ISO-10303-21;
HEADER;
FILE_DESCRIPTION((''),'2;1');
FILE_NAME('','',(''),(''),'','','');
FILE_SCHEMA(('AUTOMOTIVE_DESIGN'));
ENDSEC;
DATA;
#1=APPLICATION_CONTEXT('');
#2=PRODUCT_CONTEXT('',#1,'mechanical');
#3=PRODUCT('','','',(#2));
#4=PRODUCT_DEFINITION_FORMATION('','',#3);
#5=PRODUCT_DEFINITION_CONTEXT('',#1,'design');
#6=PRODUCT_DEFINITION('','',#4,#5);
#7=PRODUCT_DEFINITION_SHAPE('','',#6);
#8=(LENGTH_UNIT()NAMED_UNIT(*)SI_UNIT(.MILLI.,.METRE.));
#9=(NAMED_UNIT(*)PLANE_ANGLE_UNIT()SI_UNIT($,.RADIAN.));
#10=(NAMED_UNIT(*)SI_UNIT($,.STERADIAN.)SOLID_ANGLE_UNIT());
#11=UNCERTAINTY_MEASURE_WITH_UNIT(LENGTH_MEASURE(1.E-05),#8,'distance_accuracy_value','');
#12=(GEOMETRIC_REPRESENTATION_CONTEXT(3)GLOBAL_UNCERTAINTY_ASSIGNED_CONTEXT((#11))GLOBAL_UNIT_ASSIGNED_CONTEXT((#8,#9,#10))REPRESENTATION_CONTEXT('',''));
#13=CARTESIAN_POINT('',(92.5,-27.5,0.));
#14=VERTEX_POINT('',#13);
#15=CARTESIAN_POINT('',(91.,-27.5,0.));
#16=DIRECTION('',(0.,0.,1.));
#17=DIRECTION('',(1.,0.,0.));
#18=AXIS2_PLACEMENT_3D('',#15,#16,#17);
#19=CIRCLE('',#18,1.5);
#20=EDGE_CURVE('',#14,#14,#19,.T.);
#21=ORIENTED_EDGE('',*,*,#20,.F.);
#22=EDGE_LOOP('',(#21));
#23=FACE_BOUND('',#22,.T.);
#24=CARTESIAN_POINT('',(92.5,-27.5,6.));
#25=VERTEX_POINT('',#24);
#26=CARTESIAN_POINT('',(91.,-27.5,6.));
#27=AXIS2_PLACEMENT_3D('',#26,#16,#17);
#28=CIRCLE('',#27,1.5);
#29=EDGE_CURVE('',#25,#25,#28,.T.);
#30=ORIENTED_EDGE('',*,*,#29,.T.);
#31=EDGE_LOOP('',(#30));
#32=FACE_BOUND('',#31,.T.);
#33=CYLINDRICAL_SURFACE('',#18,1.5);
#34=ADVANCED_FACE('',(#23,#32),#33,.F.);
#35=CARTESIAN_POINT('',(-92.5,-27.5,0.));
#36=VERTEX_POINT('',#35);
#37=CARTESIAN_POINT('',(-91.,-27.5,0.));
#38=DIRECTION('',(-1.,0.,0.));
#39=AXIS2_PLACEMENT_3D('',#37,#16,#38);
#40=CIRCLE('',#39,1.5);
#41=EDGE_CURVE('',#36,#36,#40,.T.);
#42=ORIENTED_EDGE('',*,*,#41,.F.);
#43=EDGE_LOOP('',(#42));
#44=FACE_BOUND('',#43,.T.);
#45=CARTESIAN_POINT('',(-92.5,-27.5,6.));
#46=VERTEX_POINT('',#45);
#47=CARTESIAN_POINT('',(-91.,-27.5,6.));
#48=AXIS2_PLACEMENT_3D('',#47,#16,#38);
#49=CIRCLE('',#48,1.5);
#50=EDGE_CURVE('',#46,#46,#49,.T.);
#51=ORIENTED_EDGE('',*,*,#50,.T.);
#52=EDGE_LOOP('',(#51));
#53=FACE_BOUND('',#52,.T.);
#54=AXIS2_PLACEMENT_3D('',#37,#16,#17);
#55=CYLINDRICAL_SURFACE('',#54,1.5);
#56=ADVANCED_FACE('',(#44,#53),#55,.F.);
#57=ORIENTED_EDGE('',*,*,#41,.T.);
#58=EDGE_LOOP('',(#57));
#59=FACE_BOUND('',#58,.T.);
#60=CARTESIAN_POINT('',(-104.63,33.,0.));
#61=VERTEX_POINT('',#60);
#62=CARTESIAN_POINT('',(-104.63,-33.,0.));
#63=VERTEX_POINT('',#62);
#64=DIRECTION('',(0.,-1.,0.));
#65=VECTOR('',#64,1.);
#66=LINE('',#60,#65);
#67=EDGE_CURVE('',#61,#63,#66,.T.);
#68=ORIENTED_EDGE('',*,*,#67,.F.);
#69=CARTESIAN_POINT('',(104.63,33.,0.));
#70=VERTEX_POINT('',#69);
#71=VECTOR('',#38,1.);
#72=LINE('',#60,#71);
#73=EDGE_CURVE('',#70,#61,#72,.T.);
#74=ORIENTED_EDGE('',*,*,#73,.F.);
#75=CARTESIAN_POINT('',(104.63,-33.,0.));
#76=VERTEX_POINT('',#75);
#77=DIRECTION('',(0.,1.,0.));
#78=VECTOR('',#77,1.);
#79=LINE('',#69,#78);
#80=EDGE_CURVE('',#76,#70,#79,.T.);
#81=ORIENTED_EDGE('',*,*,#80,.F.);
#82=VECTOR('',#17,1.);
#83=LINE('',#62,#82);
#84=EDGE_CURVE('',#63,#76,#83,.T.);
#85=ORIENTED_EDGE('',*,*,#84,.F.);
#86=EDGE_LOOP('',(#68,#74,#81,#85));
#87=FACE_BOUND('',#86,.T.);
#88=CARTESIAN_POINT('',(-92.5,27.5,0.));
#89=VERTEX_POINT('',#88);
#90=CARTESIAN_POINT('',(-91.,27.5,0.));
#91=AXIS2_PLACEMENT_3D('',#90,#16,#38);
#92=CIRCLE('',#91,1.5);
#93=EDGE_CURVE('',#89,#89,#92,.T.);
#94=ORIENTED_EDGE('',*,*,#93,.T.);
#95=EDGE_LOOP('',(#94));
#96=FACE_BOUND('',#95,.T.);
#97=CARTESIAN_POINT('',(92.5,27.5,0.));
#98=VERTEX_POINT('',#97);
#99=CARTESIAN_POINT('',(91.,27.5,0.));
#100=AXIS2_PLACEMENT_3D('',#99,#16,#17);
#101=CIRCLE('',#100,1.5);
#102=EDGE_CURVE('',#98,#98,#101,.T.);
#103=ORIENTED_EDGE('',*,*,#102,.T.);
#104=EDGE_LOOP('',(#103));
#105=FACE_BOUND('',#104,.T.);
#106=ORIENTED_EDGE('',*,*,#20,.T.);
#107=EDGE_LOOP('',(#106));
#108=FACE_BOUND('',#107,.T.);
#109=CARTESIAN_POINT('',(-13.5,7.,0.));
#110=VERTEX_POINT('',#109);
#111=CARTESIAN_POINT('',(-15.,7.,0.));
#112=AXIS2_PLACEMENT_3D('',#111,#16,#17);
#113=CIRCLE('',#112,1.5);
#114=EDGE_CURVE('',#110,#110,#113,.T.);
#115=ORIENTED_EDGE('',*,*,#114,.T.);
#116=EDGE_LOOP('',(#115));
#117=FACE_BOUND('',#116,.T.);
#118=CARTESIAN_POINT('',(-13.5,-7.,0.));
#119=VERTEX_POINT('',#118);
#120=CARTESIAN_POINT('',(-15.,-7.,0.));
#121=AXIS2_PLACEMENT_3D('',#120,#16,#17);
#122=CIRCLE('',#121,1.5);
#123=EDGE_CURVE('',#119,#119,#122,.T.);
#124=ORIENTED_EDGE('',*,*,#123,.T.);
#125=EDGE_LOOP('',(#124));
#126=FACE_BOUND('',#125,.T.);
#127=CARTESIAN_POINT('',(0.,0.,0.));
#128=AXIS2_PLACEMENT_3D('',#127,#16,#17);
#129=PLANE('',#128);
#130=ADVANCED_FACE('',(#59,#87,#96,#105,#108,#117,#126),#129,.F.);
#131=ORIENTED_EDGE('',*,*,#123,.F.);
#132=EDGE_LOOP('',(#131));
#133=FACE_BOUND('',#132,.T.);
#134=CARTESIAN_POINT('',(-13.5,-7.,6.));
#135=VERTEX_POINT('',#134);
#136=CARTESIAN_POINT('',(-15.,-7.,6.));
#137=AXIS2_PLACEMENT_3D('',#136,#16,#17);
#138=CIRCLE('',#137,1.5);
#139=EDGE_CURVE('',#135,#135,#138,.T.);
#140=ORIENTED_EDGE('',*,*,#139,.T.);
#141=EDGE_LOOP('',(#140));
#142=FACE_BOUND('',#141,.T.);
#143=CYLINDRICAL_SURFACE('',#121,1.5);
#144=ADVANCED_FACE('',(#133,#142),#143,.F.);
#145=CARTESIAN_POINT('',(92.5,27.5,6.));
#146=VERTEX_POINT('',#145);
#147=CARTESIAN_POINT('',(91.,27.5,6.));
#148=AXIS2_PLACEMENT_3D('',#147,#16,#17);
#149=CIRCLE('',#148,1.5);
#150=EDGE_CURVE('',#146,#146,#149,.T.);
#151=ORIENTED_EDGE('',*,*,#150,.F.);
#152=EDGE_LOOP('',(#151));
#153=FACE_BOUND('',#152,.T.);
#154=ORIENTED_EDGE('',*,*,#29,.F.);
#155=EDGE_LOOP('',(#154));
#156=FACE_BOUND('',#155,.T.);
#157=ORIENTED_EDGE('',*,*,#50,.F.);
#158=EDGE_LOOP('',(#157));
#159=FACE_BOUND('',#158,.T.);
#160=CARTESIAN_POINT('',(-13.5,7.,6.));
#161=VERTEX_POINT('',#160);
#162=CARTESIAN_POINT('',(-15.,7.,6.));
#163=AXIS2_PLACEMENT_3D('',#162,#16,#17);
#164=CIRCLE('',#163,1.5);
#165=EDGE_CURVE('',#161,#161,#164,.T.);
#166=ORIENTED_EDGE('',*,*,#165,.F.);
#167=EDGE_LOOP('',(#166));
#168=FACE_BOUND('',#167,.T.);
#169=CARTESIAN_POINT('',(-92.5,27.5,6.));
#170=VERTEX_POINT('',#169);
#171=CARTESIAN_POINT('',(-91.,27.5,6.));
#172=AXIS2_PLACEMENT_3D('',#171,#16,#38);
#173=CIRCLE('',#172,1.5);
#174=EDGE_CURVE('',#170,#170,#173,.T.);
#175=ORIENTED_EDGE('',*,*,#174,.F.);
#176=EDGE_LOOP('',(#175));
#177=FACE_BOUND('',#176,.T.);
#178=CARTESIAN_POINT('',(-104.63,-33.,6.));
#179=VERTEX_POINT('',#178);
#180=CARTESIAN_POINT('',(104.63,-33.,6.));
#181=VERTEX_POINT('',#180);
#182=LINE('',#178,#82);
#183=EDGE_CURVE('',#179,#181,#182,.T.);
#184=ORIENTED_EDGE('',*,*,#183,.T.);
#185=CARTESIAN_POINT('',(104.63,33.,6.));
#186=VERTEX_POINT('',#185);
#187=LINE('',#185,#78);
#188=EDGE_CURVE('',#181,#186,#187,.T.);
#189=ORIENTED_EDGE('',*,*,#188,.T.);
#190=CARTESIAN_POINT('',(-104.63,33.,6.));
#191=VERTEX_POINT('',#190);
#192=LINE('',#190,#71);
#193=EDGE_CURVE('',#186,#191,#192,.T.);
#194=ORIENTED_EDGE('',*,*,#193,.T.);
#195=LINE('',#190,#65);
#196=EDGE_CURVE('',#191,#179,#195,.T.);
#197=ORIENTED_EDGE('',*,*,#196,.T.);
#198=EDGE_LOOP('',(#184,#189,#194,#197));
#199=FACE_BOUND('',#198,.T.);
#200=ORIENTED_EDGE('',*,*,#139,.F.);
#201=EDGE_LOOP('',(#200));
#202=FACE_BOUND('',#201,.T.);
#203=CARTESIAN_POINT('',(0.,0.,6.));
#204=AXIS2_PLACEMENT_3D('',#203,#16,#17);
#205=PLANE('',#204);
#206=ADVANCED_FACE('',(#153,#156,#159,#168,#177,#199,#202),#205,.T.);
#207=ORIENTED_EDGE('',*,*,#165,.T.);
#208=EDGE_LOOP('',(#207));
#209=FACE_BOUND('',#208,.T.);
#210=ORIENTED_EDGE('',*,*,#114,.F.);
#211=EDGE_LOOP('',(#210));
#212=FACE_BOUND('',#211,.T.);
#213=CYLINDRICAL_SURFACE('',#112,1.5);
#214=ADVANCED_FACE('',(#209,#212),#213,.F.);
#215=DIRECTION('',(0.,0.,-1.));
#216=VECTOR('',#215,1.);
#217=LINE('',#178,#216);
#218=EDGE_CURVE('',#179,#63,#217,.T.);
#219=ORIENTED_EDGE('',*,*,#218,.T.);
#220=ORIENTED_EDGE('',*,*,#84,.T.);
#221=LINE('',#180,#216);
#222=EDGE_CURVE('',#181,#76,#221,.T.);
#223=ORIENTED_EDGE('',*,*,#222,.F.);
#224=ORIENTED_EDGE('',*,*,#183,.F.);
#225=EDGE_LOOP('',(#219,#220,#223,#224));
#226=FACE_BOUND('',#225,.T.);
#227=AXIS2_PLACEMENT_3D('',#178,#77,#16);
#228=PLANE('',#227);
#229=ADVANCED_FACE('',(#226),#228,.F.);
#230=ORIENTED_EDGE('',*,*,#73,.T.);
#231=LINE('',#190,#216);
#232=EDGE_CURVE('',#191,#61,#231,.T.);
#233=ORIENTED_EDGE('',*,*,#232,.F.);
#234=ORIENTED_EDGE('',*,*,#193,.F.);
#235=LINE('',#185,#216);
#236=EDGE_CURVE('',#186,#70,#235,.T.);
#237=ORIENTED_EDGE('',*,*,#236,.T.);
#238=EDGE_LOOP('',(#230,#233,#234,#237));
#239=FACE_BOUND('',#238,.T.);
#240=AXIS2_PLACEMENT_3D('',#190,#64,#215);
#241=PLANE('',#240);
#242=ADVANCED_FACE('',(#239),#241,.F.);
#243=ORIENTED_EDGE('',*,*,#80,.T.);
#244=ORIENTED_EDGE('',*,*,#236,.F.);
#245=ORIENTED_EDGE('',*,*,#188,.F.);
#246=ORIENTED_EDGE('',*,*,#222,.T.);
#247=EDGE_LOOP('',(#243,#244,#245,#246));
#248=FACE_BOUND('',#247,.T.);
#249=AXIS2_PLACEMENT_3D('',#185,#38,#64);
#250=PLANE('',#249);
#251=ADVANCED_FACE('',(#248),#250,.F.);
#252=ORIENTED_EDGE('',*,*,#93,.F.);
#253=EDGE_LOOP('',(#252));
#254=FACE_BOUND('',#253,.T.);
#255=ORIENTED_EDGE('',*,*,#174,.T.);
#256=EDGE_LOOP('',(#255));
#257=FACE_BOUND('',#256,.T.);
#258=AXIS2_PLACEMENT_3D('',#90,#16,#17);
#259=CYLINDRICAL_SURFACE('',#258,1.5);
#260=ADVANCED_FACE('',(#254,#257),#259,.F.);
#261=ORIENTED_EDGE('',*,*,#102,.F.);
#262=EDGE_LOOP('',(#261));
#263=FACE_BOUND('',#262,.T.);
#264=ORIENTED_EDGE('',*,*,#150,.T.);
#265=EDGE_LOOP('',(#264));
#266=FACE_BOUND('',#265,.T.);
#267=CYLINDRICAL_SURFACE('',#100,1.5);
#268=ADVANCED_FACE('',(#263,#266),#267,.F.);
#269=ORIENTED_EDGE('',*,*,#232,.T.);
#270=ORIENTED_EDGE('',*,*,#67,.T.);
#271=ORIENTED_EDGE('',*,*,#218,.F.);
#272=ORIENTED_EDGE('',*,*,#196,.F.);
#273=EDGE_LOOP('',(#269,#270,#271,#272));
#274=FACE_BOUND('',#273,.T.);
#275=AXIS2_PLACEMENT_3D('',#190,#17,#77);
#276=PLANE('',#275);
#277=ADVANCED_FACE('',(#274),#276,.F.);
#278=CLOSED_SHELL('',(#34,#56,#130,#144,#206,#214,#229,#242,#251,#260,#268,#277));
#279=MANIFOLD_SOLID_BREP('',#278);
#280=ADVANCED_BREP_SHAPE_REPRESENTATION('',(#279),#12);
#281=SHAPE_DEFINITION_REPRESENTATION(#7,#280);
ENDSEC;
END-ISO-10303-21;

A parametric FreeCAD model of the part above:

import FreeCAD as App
import Part
import Sketcher


def add_polygon(sketch, points):
    """Adds a closed chain of lines whose ends are joined by coincident constraints."""
    first, n = sketch.GeometryCount, len(points)
    for a, b in zip(points, points[1:] + points[:1]):
        sketch.addGeometry(Part.LineSegment(App.Vector(*a, 0), App.Vector(*b, 0)), False)
    for i in range(n):
        sketch.addConstraint(Sketcher.Constraint("Coincident", first + i, 2, first + (i + 1) % n, 1))

doc = App.newDocument("Part")
params = doc.addObject("Spreadsheet::Sheet", "Params")
for row, (alias, value) in enumerate([
    ("sketch1_height", "66 mm"),
    ("sketch1_width", "209.26 mm"),
    ("pad1_length", "6 mm"),
    ("sketch2_diameter", "3 mm"),
    ("pocket1_length", "6 mm"),
], start=1):
    params.set(f"A{row}", alias)
    params.set(f"B{row}", "=" + value)
    params.setAlias(f"B{row}", alias)

body = doc.addObject("PartDesign::Body", "Body")

sketch1 = body.newObject("Sketcher::SketchObject", "Sketch")
sketch1.AttachmentSupport = (doc.getObject("XY_Plane"), [""])
sketch1.MapMode = "FlatFace"
add_polygon(sketch1, [(-105, 33), (-105, -33), (105, -33), (105, 33)])
sketch1.addConstraint([
    Sketcher.Constraint("Vertical", 0),
    Sketcher.Constraint("Horizontal", 1),
    Sketcher.Constraint("Vertical", 2),
    Sketcher.Constraint("Horizontal", 3),
    Sketcher.Constraint("Symmetric", 0, 2, 2, 2, -1, 1),
    Sketcher.Constraint("DistanceY", 0, 2, 0, 1, 66.0),
    Sketcher.Constraint("DistanceX", 1, 1, 1, 2, 209.26),
])
sketch1.setExpression("Constraints[9]", "Params.sketch1_height")
sketch1.setExpression("Constraints[10]", "Params.sketch1_width")
pad1 = body.newObject("PartDesign::Pad", "Pad")
pad1.Profile = sketch1
pad1.setExpression("Length", "Params.pad1_length")

sketch2 = body.newObject("Sketcher::SketchObject", "Sketch001")
sketch2.AttachmentSupport = (doc.getObject("XY_Plane"), [""])
sketch2.MapMode = "FlatFace"
sketch2.AttachmentOffset = App.Placement(App.Vector(0, 0, 6), App.Rotation())
sketch2.addGeometry([
    Part.Circle(App.Vector(-15, 7, 0), App.Vector(0, 0, 1), 1.5),
    Part.Circle(App.Vector(-15, -7, 0), App.Vector(0, 0, 1), 1.5),
    Part.Circle(App.Vector(91, 27.5, 0), App.Vector(0, 0, 1), 1.5),
    Part.Circle(App.Vector(91, -27.5, 0), App.Vector(0, 0, 1), 1.5),
    Part.Circle(App.Vector(-91, -27.5, 0), App.Vector(0, 0, 1), 1.5),
    Part.Circle(App.Vector(-91, 27.5, 0), App.Vector(0, 0, 1), 1.5),
], False)
sketch2.addConstraint([
    Sketcher.Constraint("Equal", 0, 1),
    Sketcher.Constraint("Equal", 1, 2),
    Sketcher.Constraint("Equal", 2, 3),
    Sketcher.Constraint("Equal", 3, 4),
    Sketcher.Constraint("Equal", 4, 5),
    Sketcher.Constraint("Symmetric", 2, 3, 4, 3, -1, 1),
    Sketcher.Constraint("Symmetric", 3, 3, 5, 3, -1, 1),
    Sketcher.Constraint("Symmetric", 3, 3, 4, 3, -2),
    Sketcher.Constraint("Symmetric", 0, 3, 1, 3, -1),
    Sketcher.Constraint("Diameter", 0, 3.0),
    Sketcher.Constraint("DistanceX", 0, 3, -1, 1, 15.0),
    Sketcher.Constraint("DistanceY", -1, 1, 0, 3, 7.0),
    Sketcher.Constraint("DistanceX", -1, 1, 2, 3, 91.0),
    Sketcher.Constraint("DistanceY", 3, 3, 2, 3, 55.0),
])
sketch2.setExpression("Constraints[9]", "Params.sketch2_diameter")
pocket1 = body.newObject("PartDesign::Pocket", "Pocket")
pocket1.Profile = sketch2
pocket1.setExpression("Length", "Params.pocket1_length")

doc.recompute()
